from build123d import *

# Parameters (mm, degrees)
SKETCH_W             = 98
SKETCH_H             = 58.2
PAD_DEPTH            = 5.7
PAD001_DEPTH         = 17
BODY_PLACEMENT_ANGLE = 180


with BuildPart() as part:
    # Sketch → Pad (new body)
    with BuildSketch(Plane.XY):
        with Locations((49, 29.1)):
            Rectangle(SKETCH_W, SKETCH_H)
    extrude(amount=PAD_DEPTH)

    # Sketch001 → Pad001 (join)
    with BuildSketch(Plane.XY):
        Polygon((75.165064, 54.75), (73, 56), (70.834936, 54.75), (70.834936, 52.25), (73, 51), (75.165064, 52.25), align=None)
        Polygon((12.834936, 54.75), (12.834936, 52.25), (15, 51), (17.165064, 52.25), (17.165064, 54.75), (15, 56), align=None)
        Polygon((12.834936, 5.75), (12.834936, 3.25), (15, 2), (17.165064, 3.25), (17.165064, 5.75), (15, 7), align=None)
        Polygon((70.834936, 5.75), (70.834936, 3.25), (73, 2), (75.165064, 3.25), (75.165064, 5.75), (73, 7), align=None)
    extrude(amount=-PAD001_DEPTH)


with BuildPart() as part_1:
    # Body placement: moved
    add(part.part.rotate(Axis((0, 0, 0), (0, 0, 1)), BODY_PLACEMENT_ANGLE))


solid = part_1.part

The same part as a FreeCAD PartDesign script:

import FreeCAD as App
import Part
import Sketcher

V = App.Vector
Q = App.Units.Quantity

doc = App.newDocument("Part")
body = doc.addObject("PartDesign::Body", "Body")

sketch1 = doc.addObject("Sketcher::SketchObject", "Sketch")
body.addObject(sketch1)
sketch1.AttachmentSupport = (doc.XY_Plane, [""])
sketch1.MapMode = "FlatFace"
sketch1.addGeometry([
    Part.LineSegment(V(0, 58, 0), V(0, 0, 0)),
    Part.LineSegment(V(0, 0, 0), V(98, 0, 0)),
    Part.LineSegment(V(98, 0, 0), V(98, 58, 0)),
    Part.LineSegment(V(98, 58, 0), V(0, 58, 0)),
], False)
sketch1.addConstraint([
    Sketcher.Constraint("Coincident", 0, 2, 1, 1),
    Sketcher.Constraint("Coincident", 1, 2, 2, 1),
    Sketcher.Constraint("Coincident", 2, 2, 3, 1),
    Sketcher.Constraint("Coincident", 3, 2, 0, 1),
    Sketcher.Constraint("Vertical", 0),
    Sketcher.Constraint("Horizontal", 1),
    Sketcher.Constraint("Vertical", 2),
    Sketcher.Constraint("Horizontal", 3),
    Sketcher.Constraint("Coincident", 0, 2, -1, 1),
    Sketcher.Constraint("DistanceX", 1, 1, 1, 2, Q("98 mm")),
    Sketcher.Constraint("DistanceY", 0, 2, 0, 1, Q("58.2 mm")),
])
pad1 = doc.addObject("PartDesign::Pad", "Pad")
body.addObject(pad1)
pad1.Profile = sketch1
pad1.Length = 5.7

sketch2 = doc.addObject("Sketcher::SketchObject", "Sketch001")
body.addObject(sketch2)
sketch2.AttachmentSupport = (doc.XY_Plane, [""])
sketch2.MapMode = "FlatFace"
sketch2.addGeometry([
    Part.LineSegment(V(75.2, 54.8, 0), V(73, 56, 0)),
    Part.LineSegment(V(73, 56, 0), V(70.8, 54.8, 0)),
    Part.LineSegment(V(70.8, 54.8, 0), V(70.8, 52.2, 0)),
    Part.LineSegment(V(70.8, 52.2, 0), V(73, 51, 0)),
    Part.LineSegment(V(73, 51, 0), V(75.2, 52.2, 0)),
    Part.LineSegment(V(75.2, 52.2, 0), V(75.2, 54.8, 0)),
    Part.LineSegment(V(12.8, 54.8, 0), V(12.8, 52.2, 0)),
    Part.LineSegment(V(12.8, 52.2, 0), V(15, 51, 0)),
    Part.LineSegment(V(15, 51, 0), V(17.2, 52.2, 0)),
    Part.LineSegment(V(17.2, 52.2, 0), V(17.2, 54.8, 0)),
    Part.LineSegment(V(17.2, 54.8, 0), V(15, 56, 0)),
    Part.LineSegment(V(15, 56, 0), V(12.8, 54.8, 0)),
    Part.LineSegment(V(12.8, 5.8, 0), V(12.8, 3.2, 0)),
    Part.LineSegment(V(12.8, 3.2, 0), V(15, 2, 0)),
    Part.LineSegment(V(15, 2, 0), V(17.2, 3.2, 0)),
    Part.LineSegment(V(17.2, 3.2, 0), V(17.2, 5.8, 0)),
    Part.LineSegment(V(17.2, 5.8, 0), V(15, 7, 0)),
    Part.LineSegment(V(15, 7, 0), V(12.8, 5.8, 0)),
    Part.LineSegment(V(70.8, 5.8, 0), V(70.8, 3.2, 0)),
    Part.LineSegment(V(70.8, 3.2, 0), V(73, 2, 0)),
    Part.LineSegment(V(73, 2, 0), V(75.2, 3.2, 0)),
    Part.LineSegment(V(75.2, 3.2, 0), V(75.2, 5.8, 0)),
    Part.LineSegment(V(75.2, 5.8, 0), V(73, 7, 0)),
    Part.LineSegment(V(73, 7, 0), V(70.8, 5.8, 0)),
], False)
sketch2.addConstraint([
    Sketcher.Constraint("Coincident", 0, 2, 1, 1),
    Sketcher.Constraint("Coincident", 1, 2, 2, 1),
    Sketcher.Constraint("Coincident", 2, 2, 3, 1),
    Sketcher.Constraint("Coincident", 3, 2, 4, 1),
    Sketcher.Constraint("Coincident", 4, 2, 5, 1),
    Sketcher.Constraint("Coincident", 5, 2, 0, 1),
    Sketcher.Constraint("Coincident", 6, 2, 7, 1),
    Sketcher.Constraint("Coincident", 7, 2, 8, 1),
    Sketcher.Constraint("Coincident", 8, 2, 9, 1),
    Sketcher.Constraint("Coincident", 9, 2, 10, 1),
    Sketcher.Constraint("Coincident", 10, 2, 11, 1),
    Sketcher.Constraint("Coincident", 11, 2, 6, 1),
    Sketcher.Constraint("Coincident", 12, 2, 13, 1),
    Sketcher.Constraint("Coincident", 13, 2, 14, 1),
    Sketcher.Constraint("Coincident", 14, 2, 15, 1),
    Sketcher.Constraint("Coincident", 15, 2, 16, 1),
    Sketcher.Constraint("Coincident", 16, 2, 17, 1),
    Sketcher.Constraint("Coincident", 17, 2, 12, 1),
    Sketcher.Constraint("Coincident", 18, 2, 19, 1),
    Sketcher.Constraint("Coincident", 19, 2, 20, 1),
    Sketcher.Constraint("Coincident", 20, 2, 21, 1),
    Sketcher.Constraint("Coincident", 21, 2, 22, 1),
    Sketcher.Constraint("Coincident", 22, 2, 23, 1),
    Sketcher.Constraint("Coincident", 23, 2, 18, 1),
    Sketcher.Constraint("Vertical", 2),
    Sketcher.Constraint("Vertical", 5),
    Sketcher.Constraint("Vertical", 6),
    Sketcher.Constraint("Vertical", 9),
    Sketcher.Constraint("Vertical", 12),
    Sketcher.Constraint("Vertical", 15),
    Sketcher.Constraint("Vertical", 18),
    Sketcher.Constraint("Vertical", 21),
    Sketcher.Constraint("Parallel", 0, 3),
    Sketcher.Constraint("Parallel", 1, 4),
    Sketcher.Constraint("Parallel", 3, 7),
    Sketcher.Constraint("Parallel", 4, 8),
    Sketcher.Constraint("Parallel", 7, 10),
    Sketcher.Constraint("Parallel", 8, 11),
    Sketcher.Constraint("Parallel", 10, 13),
    Sketcher.Constraint("Parallel", 11, 14),
    Sketcher.Constraint("Parallel", 13, 16),
    Sketcher.Constraint("Parallel", 14, 17),
    Sketcher.Constraint("Parallel", 16, 19),
    Sketcher.Constraint("Parallel", 17, 20),
    Sketcher.Constraint("Parallel", 19, 22),
    Sketcher.Constraint("Parallel", 20, 23),
    Sketcher.Constraint("Horizontal", 2, 2, 4, 2),
    Sketcher.Constraint("Horizontal", 1, 2, 5, 2),
    Sketcher.Constraint("Horizontal", 4, 2, 6, 2),
    Sketcher.Constraint("Horizontal", 3, 2, 7, 2),
    Sketcher.Constraint("Horizontal", 6, 2, 8, 2),
    Sketcher.Constraint("Horizontal", 5, 2, 9, 2),
    Sketcher.Constraint("Horizontal", 0, 2, 10, 2),
    Sketcher.Constraint("Horizontal", 12, 2, 14, 2),
    Sketcher.Constraint("Horizontal", 15, 2, 17, 2),
    Sketcher.Constraint("Horizontal", 14, 2, 18, 2),
    Sketcher.Constraint("Horizontal", 13, 2, 19, 2),
    Sketcher.Constraint("Horizontal", 18, 2, 20, 2),
    Sketcher.Constraint("Horizontal", 17, 2, 21, 2),
    Sketcher.Constraint("Horizontal", 16, 2, 22, 2),
    Sketcher.Constraint("Vertical", 0, 2, 3, 2),
    Sketcher.Constraint("Vertical", 11, 2, 12, 2),
    Sketcher.Constraint("Vertical", 10, 2, 13, 2),
    Sketcher.Constraint("Vertical", 2, 2, 18, 2),
    Sketcher.Constraint("Equal", 9, 12),
    Sketcher.Constraint("Angle", 0, Q("150.000006 deg")),
    Sketcher.Constraint("DistanceY", 2, 2, 2, 1, Q("2.5 mm")),
    Sketcher.Constraint("DistanceX", -1, 1, 0, 2, Q("73 mm")),
    Sketcher.Constraint("DistanceY", -1, 1, 0, 2, Q("56 mm")),
    Sketcher.Constraint("DistanceY", -1, 1, 3, 2, Q("51 mm")),
    Sketcher.Constraint("DistanceX", -1, 1, 7, 2, Q("15 mm")),
    Sketcher.Constraint("DistanceY", -1, 1, 13, 2, Q("2 mm")),
])
pad2 = doc.addObject("PartDesign::Pad", "Pad001")
body.addObject(pad2)
pad2.Profile = sketch2
pad2.Length = 17
pad2.Reversed = True
body2 = doc.addObject("PartDesign::Body", "Body001")
doc.recompute()

body.Placement = App.Placement(V(0, 0, 0), App.Rotation(V(0, 0, 1), 180))
boolean = doc.addObject("PartDesign::Boolean", "Boolean")
body2.addObject(boolean)
boolean.Type = "Fuse"
boolean.addObjects([body])

doc.recompute()
